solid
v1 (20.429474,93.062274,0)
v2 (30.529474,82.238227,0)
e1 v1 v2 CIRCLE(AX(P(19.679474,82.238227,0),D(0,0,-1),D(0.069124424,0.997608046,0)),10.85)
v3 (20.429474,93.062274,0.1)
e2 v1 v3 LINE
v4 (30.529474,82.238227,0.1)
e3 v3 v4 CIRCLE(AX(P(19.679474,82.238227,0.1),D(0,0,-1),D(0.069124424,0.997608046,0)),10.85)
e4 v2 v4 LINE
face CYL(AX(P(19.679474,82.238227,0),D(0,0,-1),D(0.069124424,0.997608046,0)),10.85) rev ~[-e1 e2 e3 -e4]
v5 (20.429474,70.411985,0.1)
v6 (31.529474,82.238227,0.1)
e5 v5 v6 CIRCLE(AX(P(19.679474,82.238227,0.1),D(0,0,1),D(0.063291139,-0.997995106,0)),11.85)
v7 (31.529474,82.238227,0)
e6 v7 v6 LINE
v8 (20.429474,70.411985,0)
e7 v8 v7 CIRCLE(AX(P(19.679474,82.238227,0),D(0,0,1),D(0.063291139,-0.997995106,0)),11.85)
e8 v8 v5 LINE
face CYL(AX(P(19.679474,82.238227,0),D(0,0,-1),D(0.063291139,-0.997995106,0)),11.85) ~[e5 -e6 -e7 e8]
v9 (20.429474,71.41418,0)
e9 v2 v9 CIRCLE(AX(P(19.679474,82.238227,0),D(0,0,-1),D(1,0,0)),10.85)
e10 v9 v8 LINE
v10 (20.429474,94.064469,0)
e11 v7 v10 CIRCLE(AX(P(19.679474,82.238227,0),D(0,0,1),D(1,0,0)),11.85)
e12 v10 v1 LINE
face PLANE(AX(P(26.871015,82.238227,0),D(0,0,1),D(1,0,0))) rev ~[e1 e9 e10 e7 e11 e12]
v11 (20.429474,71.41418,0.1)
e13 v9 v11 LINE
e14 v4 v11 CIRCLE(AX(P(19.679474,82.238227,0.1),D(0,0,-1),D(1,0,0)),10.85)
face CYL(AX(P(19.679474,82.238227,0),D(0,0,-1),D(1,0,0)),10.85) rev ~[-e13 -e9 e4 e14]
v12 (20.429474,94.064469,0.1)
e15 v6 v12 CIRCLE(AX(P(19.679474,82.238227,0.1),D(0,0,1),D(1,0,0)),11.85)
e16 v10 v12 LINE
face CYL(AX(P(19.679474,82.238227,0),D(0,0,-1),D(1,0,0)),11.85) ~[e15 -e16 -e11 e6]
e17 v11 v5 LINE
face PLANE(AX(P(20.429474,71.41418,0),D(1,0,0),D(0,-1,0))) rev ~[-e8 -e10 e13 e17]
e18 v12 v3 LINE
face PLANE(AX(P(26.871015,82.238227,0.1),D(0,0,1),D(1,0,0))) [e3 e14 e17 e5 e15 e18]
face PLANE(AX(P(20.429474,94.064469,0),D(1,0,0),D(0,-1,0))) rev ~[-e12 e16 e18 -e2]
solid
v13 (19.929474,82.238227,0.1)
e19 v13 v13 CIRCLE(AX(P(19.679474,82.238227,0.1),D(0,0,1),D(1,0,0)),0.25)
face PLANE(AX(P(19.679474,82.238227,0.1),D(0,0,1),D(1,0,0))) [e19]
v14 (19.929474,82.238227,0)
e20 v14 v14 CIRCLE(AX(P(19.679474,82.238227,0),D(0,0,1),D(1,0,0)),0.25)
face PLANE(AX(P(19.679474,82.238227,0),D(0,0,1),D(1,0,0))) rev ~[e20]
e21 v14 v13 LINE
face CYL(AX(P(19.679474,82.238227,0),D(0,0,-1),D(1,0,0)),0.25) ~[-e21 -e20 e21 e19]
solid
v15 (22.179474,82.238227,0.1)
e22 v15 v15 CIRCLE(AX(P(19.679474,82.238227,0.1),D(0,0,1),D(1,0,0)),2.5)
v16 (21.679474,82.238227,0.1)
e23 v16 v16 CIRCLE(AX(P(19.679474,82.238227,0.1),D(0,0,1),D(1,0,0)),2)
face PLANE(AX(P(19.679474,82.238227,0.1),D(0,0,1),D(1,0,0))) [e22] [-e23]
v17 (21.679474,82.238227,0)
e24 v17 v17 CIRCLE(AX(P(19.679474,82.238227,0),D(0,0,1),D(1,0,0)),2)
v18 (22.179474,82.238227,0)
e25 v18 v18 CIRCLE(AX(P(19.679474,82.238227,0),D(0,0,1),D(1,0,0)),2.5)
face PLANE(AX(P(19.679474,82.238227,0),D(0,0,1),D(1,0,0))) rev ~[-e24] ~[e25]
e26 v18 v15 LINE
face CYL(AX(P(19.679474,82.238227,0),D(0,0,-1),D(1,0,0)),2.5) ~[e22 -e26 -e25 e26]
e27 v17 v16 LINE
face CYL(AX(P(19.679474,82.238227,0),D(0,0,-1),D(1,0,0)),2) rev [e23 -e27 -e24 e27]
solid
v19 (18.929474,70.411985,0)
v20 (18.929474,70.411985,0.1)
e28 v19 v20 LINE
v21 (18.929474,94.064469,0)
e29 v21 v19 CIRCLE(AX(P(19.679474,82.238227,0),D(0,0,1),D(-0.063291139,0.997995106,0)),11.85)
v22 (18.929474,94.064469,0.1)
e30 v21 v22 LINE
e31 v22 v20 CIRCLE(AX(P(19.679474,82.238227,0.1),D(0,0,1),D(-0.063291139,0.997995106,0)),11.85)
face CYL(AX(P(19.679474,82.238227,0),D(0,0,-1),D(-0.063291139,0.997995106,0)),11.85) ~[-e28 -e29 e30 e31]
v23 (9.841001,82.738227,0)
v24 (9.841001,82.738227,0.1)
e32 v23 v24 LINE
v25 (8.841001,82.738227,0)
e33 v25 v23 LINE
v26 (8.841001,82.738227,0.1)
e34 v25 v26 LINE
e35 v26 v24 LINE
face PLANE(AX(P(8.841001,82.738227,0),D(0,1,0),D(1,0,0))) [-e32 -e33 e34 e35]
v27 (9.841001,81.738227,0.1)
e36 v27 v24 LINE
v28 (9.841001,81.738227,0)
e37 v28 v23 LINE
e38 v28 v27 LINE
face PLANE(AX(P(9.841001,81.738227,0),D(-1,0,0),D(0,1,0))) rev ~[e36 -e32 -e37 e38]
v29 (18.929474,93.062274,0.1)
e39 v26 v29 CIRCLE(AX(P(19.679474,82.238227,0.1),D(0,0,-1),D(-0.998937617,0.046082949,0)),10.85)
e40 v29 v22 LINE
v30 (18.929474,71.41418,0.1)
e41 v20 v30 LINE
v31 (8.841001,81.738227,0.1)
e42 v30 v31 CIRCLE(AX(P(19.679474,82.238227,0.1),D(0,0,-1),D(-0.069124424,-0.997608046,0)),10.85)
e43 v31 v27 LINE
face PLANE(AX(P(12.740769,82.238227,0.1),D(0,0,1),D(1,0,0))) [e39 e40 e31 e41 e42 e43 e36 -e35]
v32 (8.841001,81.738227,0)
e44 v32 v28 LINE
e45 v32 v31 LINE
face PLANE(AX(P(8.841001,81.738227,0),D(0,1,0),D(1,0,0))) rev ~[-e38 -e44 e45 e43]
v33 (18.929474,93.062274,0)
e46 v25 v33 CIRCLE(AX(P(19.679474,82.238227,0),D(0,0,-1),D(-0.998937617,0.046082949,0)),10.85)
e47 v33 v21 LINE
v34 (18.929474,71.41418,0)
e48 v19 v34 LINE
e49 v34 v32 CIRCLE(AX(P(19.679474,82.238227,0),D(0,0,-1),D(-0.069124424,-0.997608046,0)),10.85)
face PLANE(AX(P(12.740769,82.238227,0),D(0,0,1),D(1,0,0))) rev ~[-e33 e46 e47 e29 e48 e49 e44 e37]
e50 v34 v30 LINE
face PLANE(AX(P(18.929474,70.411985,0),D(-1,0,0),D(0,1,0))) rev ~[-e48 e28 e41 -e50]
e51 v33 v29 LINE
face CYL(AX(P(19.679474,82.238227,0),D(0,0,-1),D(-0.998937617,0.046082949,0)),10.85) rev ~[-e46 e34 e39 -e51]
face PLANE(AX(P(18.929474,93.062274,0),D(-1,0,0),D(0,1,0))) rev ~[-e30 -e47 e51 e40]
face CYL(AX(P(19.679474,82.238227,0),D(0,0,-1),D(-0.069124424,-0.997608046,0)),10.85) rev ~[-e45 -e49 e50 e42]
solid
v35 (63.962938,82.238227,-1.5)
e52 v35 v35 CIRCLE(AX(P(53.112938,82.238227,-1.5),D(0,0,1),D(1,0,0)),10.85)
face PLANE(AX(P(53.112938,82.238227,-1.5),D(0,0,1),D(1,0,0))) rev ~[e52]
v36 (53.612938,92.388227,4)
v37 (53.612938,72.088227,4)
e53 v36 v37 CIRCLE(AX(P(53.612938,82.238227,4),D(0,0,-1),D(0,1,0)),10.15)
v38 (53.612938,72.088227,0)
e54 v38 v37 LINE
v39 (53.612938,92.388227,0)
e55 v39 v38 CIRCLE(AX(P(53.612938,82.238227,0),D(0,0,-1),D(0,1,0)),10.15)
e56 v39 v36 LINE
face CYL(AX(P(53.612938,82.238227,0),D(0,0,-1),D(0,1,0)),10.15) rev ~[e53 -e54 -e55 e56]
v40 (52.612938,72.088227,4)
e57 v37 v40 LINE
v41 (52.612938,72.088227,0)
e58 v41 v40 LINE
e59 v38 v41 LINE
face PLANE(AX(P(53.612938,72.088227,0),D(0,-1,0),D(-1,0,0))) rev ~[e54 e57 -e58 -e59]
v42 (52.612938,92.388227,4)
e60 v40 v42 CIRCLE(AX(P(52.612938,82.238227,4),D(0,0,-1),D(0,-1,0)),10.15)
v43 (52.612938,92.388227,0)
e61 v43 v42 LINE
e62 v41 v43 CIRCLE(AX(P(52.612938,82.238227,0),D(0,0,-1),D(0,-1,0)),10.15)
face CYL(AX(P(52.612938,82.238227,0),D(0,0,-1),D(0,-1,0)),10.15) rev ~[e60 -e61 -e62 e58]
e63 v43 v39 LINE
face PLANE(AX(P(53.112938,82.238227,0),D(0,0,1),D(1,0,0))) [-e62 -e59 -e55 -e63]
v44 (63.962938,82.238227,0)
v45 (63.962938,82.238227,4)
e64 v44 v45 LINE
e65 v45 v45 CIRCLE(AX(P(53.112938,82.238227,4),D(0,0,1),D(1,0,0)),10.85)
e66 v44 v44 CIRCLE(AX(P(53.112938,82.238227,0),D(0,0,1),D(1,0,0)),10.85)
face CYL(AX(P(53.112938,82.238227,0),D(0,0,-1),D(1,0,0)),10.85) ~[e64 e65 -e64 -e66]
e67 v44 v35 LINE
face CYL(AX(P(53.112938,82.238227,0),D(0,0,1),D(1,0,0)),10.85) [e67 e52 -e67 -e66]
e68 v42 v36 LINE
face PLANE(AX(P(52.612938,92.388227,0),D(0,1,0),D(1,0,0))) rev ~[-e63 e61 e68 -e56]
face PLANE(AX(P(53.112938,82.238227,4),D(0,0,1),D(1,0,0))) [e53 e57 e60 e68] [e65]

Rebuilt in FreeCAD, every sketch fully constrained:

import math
import FreeCAD as App
import Part
import Sketcher
from FreeCAD import Vector

doc = App.newDocument("Part")
params = doc.addObject("Spreadsheet::Sheet", "Params")
for row, (alias, value) in enumerate([
    ("sketch1_diameter", "5 mm"),
    ("sketch1_diameter2", "4 mm"),
    ("pad1_length", "0.1 mm"),
    ("sketch2_width", "1 mm"),
    ("sketch2_radius", "10.85 mm"),
    ("sketch2_radius2", "11.85 mm"),
    ("sketch2_width2", "0.75 mm"),
    ("pad2_length", "0.1 mm"),
    ("sketch3_radius", "10.85 mm"),
    ("sketch3_radius2", "11.85 mm"),
    ("pad3_length", "0.1 mm"),
    ("sketch4_diameter", "0.5 mm"),
    ("pad4_length", "0.1 mm"),
    ("sketch5_diameter", "21.7 mm"),
    ("pad5_length", "1.5 mm"),
    ("sketch6_diameter", "21.7 mm"),
    ("sketch6_width", "1 mm"),
    ("sketch6_radius", "10.15 mm"),
    ("pad6_length", "4 mm"),
], start=1):
    params.set(f"A{row}", alias)
    params.set(f"B{row}", "=" + value)
    params.setAlias(f"B{row}", alias)

body = doc.addObject("PartDesign::Body", "Body")

sketch1 = doc.addObject("Sketcher::SketchObject", "Sketch")
body.addObject(sketch1)
sketch1.AttachmentSupport = (doc.XY_Plane, [""])
sketch1.MapMode = "FlatFace"
sketch1.addGeometry([
    Part.Circle(Vector(19.679474, 82.238227, 0), Vector(0, 0, 1), 2.5),
    Part.Circle(Vector(19.679474, 82.238227, 0), Vector(0, 0, 1), 2),
], False)
sketch1.addConstraint([
    Sketcher.Constraint("Coincident", 1, 3, 0, 3),
    Sketcher.Constraint("Diameter", 0, 5.0),
    Sketcher.Constraint("Diameter", 1, 4.0),
    Sketcher.Constraint("DistanceX", -1, 1, 0, 3, 19.679474),
    Sketcher.Constraint("DistanceY", -1, 1, 0, 3, 82.238227),
])
sketch1.setExpression("Constraints[1]", "Params.sketch1_diameter")
sketch1.setExpression("Constraints[2]", "Params.sketch1_diameter2")
pad1 = doc.addObject("PartDesign::Pad", "Pad")
body.addObject(pad1)
pad1.Profile = sketch1
pad1.setExpression("Length", "Params.pad1_length")
body2 = doc.addObject("PartDesign::Body", "Body001")

sketch2 = doc.addObject("Sketcher::SketchObject", "Sketch001")
body2.addObject(sketch2)
sketch2.AttachmentSupport = (doc.getObject("XY_Plane001"), [""])
sketch2.MapMode = "FlatFace"
sketch2.addGeometry([
    Part.ArcOfCircle(Part.Circle(Vector(19.679474, 82.238227, 0), Vector(0, 0, 1), 10.85), math.radians(93.963699), math.radians(177.358706)),
    Part.LineSegment(Vector(18.929474, 93.062274, 0), Vector(18.929474, 94.064469, 0)),
    Part.ArcOfCircle(Part.Circle(Vector(19.679474, 82.238227, 0), Vector(0, 0, 1), 11.85), math.radians(93.628741), math.radians(266.371259)),
    Part.LineSegment(Vector(18.929474, 70.411985, 0), Vector(18.929474, 71.41418, 0)),
    Part.ArcOfCircle(Part.Circle(Vector(19.679474, 82.238227, 0), Vector(0, 0, 1), 10.85), math.radians(-177.358706), math.radians(-93.963699)),
    Part.LineSegment(Vector(8.841001, 81.738227, 0), Vector(9.841001, 81.738227, 0)),
    Part.LineSegment(Vector(9.841001, 81.738227, 0), Vector(9.841001, 82.738227, 0)),
    Part.LineSegment(Vector(9.841001, 82.738227, 0), Vector(8.841001, 82.738227, 0)),
], False)
sketch2.addConstraint([
    Sketcher.Constraint("Coincident", 0, 1, 1, 1),
    Sketcher.Constraint("Coincident", 1, 2, 2, 1),
    Sketcher.Constraint("Coincident", 2, 2, 3, 1),
    Sketcher.Constraint("Coincident", 3, 2, 4, 2),
    Sketcher.Constraint("Coincident", 4, 1, 5, 1),
    Sketcher.Constraint("Coincident", 5, 2, 6, 1),
    Sketcher.Constraint("Coincident", 6, 2, 7, 1),
    Sketcher.Constraint("Coincident", 7, 2, 0, 2),
    Sketcher.Constraint("Vertical", 1),
    Sketcher.Constraint("Vertical", 3),
    Sketcher.Constraint("Horizontal", 5),
    Sketcher.Constraint("Vertical", 6),
    Sketcher.Constraint("Horizontal", 7),
    Sketcher.Constraint("Coincident", 2, 3, 0, 3),
    Sketcher.Constraint("Coincident", 4, 3, 0, 3),
    Sketcher.Constraint("Equal", 0, 4),
    Sketcher.Constraint("Vertical", 1, 2, 2, 2),
    Sketcher.Constraint("Vertical", 4, 1, 7, 2),
    Sketcher.Constraint("Equal", 7, 6),
    Sketcher.Constraint("DistanceX", 5, 1, 5, 2, 1.0),
    Sketcher.Constraint("Radius", 0, 10.85),
    Sketcher.Constraint("Radius", 2, 11.85),
    Sketcher.Constraint("DistanceX", 0, 1, 0, 3, 0.75),
    Sketcher.Constraint("DistanceX", -1, 1, 4, 1, 8.841001),
    Sketcher.Constraint("DistanceY", -1, 1, 1, 2, 94.064469),
])
sketch2.setExpression("Constraints[19]", "Params.sketch2_width")
sketch2.setExpression("Constraints[20]", "Params.sketch2_radius")
sketch2.setExpression("Constraints[21]", "Params.sketch2_radius2")
sketch2.setExpression("Constraints[22]", "Params.sketch2_width2")
pad2 = doc.addObject("PartDesign::Pad", "Pad001")
body2.addObject(pad2)
pad2.Profile = sketch2
pad2.setExpression("Length", "Params.pad2_length")
body3 = doc.addObject("PartDesign::Body", "Body002")

sketch3 = doc.addObject("Sketcher::SketchObject", "Sketch002")
body3.addObject(sketch3)
sketch3.AttachmentSupport = (doc.getObject("XY_Plane002"), [""])
sketch3.MapMode = "FlatFace"
sketch3.addGeometry([
    Part.LineSegment(Vector(20.429474, 94.064469, 0), Vector(20.429474, 93.062274, 0)),
    Part.ArcOfCircle(Part.Circle(Vector(19.679474, 82.238227, 0), Vector(0, 0, 1), 10.85), math.radians(0), math.radians(86.036301)),
    Part.ArcOfCircle(Part.Circle(Vector(19.679474, 82.238227, 0), Vector(0, 0, 1), 10.85), math.radians(-86.036301), math.radians(0)),
    Part.LineSegment(Vector(20.429474, 71.41418, 0), Vector(20.429474, 70.411985, 0)),
    Part.ArcOfCircle(Part.Circle(Vector(19.679474, 82.238227, 0), Vector(0, 0, 1), 11.85), math.radians(-86.371259), math.radians(0)),
    Part.ArcOfCircle(Part.Circle(Vector(19.679474, 82.238227, 0), Vector(0, 0, 1), 11.85), math.radians(0), math.radians(86.371259)),
], False)
sketch3.addConstraint([
    Sketcher.Constraint("Coincident", 0, 2, 1, 2),
    Sketcher.Constraint("Tangent", 1, 1, 2, 2),
    Sketcher.Constraint("Coincident", 2, 1, 3, 1),
    Sketcher.Constraint("Coincident", 3, 2, 4, 1),
    Sketcher.Constraint("Tangent", 4, 2, 5, 1),
    Sketcher.Constraint("Coincident", 5, 2, 0, 1),
    Sketcher.Constraint("Vertical", 0),
    Sketcher.Constraint("Vertical", 3),
    Sketcher.Constraint("Coincident", 4, 3, 1, 3),
    Sketcher.Constraint("Equal", 1, 2),
    Sketcher.Constraint("Equal", 4, 5),
    Sketcher.Constraint("Horizontal", 5, 3, 1, 1),
    Sketcher.Constraint("Horizontal", 1, 1, 4, 2),
    Sketcher.Constraint("Vertical", 0, 2, 2, 1),
    Sketcher.Constraint("Radius", 1, 10.85),
    Sketcher.Constraint("Radius", 4, 11.85),
    Sketcher.Constraint("DistanceX", 0, 2, 1, 1, 10.1),
    Sketcher.Constraint("DistanceY", -1, 1, 2, 1, 71.41418),
    Sketcher.Constraint("DistanceX", -1, 1, 1, 3, 19.679474),
])
sketch3.setExpression("Constraints[14]", "Params.sketch3_radius")
sketch3.setExpression("Constraints[15]", "Params.sketch3_radius2")
pad3 = doc.addObject("PartDesign::Pad", "Pad002")
body3.addObject(pad3)
pad3.Profile = sketch3
pad3.setExpression("Length", "Params.pad3_length")
body4 = doc.addObject("PartDesign::Body", "Body003")

sketch4 = doc.addObject("Sketcher::SketchObject", "Sketch003")
body4.addObject(sketch4)
sketch4.AttachmentSupport = (doc.getObject("XY_Plane003"), [""])
sketch4.MapMode = "FlatFace"
sketch4.addGeometry(Part.Circle(Vector(19.679474, 82.238227, 0), Vector(0, 0, 1), 0.25), False)
sketch4.addConstraint([
    Sketcher.Constraint("Diameter", 0, 0.5),
    Sketcher.Constraint("DistanceX", -1, 1, 0, 3, 19.679474),
    Sketcher.Constraint("DistanceY", -1, 1, 0, 3, 82.238227),
])
sketch4.setExpression("Constraints[0]", "Params.sketch4_diameter")
pad4 = doc.addObject("PartDesign::Pad", "Pad003")
body4.addObject(pad4)
pad4.Profile = sketch4
pad4.setExpression("Length", "Params.pad4_length")
body5 = doc.addObject("PartDesign::Body", "Body004")

sketch5 = doc.addObject("Sketcher::SketchObject", "Sketch004")
body5.addObject(sketch5)
sketch5.AttachmentSupport = (doc.getObject("XY_Plane004"), [""])
sketch5.MapMode = "FlatFace"
sketch5.addGeometry(Part.Circle(Vector(53.112938, 82.238227, 0), Vector(0, 0, 1), 10.85), False)
sketch5.addConstraint([
    Sketcher.Constraint("Diameter", 0, 21.7),
    Sketcher.Constraint("DistanceX", -1, 1, 0, 3, 53.112938),
    Sketcher.Constraint("DistanceY", -1, 1, 0, 3, 82.238227),
])
sketch5.setExpression("Constraints[0]", "Params.sketch5_diameter")
pad5 = doc.addObject("PartDesign::Pad", "Pad004")
body5.addObject(pad5)
pad5.Profile = sketch5
pad5.setExpression("Length", "Params.pad5_length")
pad5.Reversed = True

sketch6 = doc.addObject("Sketcher::SketchObject", "Sketch005")
body5.addObject(sketch6)
sketch6.AttachmentSupport = (doc.getObject("XY_Plane004"), [""])
sketch6.MapMode = "FlatFace"
sketch6.addGeometry([
    Part.Circle(Vector(53.112938, 82.238227, 0), Vector(0, 0, 1), 10.85),
    Part.ArcOfCircle(Part.Circle(Vector(53.612938, 82.238227, 0), Vector(0, 0, 1), 10.15), math.radians(-90), math.radians(90)),
    Part.LineSegment(Vector(53.612938, 72.088227, 0), Vector(52.612938, 72.088227, 0)),
    Part.ArcOfCircle(Part.Circle(Vector(52.612938, 82.238227, 0), Vector(0, 0, 1), 10.15), math.radians(90), math.radians(270)),
    Part.LineSegment(Vector(52.612938, 92.388227, 0), Vector(53.612938, 92.388227, 0)),
], False)
sketch6.addConstraint([
    Sketcher.Constraint("Tangent", 1, 1, 2, 1),
    Sketcher.Constraint("Tangent", 2, 2, 3, 2),
    Sketcher.Constraint("Tangent", 3, 1, 4, 1),
    Sketcher.Constraint("Tangent", 4, 2, 1, 2),
    Sketcher.Constraint("Horizontal", 2),
    Sketcher.Constraint("Horizontal", 4),
    Sketcher.Constraint("Horizontal", 0, 3, 1, 3),
    Sketcher.Constraint("Diameter", 0, 21.7),
    Sketcher.Constraint("DistanceX", 2, 2, 2, 1, 1.0),
    Sketcher.Constraint("Radius", 1, 10.15),
    Sketcher.Constraint("DistanceX", 0, 3, 1, 3, 0.5),
    Sketcher.Constraint("DistanceX", -1, 1, 0, 3, 53.112938),
    Sketcher.Constraint("DistanceY", -1, 1, 0, 3, 82.238227),
])
sketch6.setExpression("Constraints[7]", "Params.sketch6_diameter")
sketch6.setExpression("Constraints[8]", "Params.sketch6_width")
sketch6.setExpression("Constraints[9]", "Params.sketch6_radius")
pad6 = doc.addObject("PartDesign::Pad", "Pad005")
body5.addObject(pad6)
pad6.Profile = sketch6
pad6.setExpression("Length", "Params.pad6_length")

doc.recompute()
